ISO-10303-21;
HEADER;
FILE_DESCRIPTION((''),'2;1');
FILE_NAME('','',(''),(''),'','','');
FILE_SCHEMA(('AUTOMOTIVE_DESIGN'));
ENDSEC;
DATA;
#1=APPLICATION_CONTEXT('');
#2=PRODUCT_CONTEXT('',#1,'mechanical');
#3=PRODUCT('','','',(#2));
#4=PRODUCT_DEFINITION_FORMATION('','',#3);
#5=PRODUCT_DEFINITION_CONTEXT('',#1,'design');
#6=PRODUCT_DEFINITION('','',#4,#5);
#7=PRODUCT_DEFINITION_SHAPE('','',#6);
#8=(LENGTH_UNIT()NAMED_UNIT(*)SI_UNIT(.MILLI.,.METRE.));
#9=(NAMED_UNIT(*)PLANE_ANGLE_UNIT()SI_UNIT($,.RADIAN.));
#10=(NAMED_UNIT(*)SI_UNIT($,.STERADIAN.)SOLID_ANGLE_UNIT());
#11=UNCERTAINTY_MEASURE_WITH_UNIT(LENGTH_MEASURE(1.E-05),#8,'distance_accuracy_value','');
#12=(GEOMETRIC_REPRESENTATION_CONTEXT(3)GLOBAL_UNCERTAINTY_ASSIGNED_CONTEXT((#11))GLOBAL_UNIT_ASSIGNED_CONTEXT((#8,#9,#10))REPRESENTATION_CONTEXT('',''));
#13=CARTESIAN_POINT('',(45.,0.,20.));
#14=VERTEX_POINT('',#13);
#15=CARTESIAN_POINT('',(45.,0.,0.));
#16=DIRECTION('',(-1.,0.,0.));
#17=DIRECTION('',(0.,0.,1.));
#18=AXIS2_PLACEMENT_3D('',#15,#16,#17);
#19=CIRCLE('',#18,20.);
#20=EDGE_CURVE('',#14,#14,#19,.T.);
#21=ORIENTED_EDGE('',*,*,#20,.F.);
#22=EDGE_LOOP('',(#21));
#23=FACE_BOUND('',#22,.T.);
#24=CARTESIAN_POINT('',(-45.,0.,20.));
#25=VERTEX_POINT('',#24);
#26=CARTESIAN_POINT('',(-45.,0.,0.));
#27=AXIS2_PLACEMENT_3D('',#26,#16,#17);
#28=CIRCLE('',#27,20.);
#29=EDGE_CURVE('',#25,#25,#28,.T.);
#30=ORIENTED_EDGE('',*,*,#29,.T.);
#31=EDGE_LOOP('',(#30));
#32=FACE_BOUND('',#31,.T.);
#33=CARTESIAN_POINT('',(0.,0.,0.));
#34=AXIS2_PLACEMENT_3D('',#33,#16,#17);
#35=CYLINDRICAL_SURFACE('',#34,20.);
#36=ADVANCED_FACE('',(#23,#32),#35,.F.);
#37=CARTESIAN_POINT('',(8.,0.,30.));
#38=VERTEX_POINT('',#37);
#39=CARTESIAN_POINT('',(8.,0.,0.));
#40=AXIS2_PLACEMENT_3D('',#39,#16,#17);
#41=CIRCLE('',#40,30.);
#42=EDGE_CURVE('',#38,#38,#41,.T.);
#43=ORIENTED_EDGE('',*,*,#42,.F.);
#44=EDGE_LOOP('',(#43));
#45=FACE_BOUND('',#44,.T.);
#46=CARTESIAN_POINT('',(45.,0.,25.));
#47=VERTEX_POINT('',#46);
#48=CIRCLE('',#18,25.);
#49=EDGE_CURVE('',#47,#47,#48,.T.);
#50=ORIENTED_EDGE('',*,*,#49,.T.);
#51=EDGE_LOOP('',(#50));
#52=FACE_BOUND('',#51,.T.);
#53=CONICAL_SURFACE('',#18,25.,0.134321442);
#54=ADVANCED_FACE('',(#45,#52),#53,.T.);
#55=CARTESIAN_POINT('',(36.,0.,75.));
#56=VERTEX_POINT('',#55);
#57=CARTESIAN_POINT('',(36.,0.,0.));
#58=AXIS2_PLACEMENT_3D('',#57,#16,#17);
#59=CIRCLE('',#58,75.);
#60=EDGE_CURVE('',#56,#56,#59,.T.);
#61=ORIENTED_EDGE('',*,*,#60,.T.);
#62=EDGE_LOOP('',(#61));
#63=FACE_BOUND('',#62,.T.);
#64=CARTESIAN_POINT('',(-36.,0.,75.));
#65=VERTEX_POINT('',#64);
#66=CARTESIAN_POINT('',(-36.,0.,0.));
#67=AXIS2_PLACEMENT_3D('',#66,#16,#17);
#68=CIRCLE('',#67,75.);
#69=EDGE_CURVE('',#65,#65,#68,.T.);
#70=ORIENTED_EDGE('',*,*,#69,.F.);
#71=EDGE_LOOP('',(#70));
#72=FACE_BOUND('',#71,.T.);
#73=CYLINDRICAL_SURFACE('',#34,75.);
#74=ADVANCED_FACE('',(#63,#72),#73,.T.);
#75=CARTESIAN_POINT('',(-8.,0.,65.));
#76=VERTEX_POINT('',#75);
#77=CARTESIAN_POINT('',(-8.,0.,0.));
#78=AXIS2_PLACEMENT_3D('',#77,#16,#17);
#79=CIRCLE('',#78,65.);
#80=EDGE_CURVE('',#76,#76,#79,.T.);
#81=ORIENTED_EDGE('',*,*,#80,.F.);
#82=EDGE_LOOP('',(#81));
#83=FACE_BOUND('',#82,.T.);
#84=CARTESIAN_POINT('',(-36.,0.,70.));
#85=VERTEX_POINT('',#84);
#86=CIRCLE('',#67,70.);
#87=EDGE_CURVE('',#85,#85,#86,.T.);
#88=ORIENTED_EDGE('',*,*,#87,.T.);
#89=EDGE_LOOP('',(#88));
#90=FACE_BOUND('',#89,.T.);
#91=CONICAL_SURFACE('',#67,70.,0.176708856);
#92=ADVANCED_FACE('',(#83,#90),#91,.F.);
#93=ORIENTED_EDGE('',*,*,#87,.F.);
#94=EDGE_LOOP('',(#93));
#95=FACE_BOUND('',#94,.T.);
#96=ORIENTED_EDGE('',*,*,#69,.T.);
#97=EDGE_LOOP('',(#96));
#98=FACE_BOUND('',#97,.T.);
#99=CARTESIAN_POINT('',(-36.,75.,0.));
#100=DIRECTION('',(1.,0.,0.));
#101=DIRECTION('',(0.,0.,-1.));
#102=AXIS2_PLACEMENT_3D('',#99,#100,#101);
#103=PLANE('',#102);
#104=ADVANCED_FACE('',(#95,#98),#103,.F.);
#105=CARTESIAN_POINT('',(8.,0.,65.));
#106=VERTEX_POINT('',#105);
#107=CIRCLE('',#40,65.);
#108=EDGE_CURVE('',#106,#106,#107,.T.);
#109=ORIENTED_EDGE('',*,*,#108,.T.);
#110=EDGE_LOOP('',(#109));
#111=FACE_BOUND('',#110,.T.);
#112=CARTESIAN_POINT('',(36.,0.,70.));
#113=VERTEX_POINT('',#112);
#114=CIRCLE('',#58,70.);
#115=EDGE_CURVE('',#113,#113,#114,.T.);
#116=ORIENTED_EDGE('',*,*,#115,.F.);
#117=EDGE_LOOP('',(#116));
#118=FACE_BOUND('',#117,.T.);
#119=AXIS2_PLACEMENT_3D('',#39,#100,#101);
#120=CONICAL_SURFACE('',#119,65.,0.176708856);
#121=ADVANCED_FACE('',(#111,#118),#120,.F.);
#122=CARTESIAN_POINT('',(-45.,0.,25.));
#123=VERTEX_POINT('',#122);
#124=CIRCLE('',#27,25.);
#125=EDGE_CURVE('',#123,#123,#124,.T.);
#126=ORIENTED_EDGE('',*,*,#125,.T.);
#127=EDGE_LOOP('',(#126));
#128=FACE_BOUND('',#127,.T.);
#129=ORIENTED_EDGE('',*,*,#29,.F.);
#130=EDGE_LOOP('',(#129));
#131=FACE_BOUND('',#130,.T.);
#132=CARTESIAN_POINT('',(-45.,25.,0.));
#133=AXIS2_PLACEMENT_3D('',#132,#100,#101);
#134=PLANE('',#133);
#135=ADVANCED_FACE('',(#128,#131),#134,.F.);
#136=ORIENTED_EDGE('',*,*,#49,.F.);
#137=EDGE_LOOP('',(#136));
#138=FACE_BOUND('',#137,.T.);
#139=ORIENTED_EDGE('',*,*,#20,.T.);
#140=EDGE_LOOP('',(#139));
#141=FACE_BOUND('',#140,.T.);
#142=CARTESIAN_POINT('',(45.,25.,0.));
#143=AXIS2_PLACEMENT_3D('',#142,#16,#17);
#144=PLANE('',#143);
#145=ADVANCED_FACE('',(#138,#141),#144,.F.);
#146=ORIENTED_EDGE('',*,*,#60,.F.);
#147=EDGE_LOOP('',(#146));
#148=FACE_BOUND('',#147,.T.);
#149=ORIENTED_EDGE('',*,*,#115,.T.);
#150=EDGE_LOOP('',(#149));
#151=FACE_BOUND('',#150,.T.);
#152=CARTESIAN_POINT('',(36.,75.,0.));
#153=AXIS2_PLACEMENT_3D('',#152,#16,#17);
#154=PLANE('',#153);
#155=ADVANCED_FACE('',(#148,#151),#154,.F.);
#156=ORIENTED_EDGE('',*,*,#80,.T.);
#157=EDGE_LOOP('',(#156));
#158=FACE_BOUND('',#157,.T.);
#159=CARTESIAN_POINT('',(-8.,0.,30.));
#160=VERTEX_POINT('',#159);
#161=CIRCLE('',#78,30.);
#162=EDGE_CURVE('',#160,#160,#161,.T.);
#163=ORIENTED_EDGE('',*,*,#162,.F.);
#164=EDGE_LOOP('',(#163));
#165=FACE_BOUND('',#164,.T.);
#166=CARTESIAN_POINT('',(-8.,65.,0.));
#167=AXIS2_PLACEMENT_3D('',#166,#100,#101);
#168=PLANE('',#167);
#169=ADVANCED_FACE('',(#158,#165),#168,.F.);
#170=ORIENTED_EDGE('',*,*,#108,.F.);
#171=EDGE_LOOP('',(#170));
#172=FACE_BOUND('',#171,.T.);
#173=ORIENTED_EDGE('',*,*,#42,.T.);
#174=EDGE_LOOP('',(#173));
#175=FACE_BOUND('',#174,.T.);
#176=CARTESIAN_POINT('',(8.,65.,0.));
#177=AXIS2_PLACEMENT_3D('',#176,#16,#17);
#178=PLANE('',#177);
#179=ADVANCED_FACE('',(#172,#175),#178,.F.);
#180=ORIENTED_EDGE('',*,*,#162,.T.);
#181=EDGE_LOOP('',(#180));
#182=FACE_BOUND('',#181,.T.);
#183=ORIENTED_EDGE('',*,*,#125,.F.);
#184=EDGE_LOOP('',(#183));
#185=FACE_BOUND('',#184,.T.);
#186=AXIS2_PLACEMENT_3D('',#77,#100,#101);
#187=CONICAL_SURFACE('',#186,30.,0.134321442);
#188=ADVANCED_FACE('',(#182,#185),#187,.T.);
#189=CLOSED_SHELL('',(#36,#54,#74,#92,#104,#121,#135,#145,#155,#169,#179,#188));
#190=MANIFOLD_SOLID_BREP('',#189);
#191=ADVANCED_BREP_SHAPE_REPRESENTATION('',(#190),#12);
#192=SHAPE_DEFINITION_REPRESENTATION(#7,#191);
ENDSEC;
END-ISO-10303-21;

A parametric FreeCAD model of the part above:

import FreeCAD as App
import Part
import Sketcher
from FreeCAD import Vector
Q = App.Units.Quantity

doc = App.newDocument("Part")
params = doc.addObject("Spreadsheet::Sheet", "Params")
for row, (alias, value) in enumerate([
    ("sketch1_width", "72 mm"),
    ("sketch1_width2", "90 mm"),
    ("sketch1_height", "5 mm"),
    ("sketch1_height2", "35 mm"),
    ("revolution_angle", "360 deg"),
], start=1):
    params.set(f"A{row}", alias)
    params.set(f"B{row}", "=" + value)
    params.setAlias(f"B{row}", alias)

body = doc.addObject("PartDesign::Body", "Body")

# Sketch on XY plane
sketch1 = body.newObject("Sketcher::SketchObject", "Sketch")
sketch1.AttachmentSupport = (doc.getObject("XY_Plane"), [""])
sketch1.MapMode = "FlatFace"
sketch1.addGeometry([
    Part.LineSegment(Vector(36, 75, 0), Vector(-36, 75, 0)),  # 0
    Part.LineSegment(Vector(-36, 75, 0), Vector(-36, 70, 0)),  # 1
    Part.LineSegment(Vector(-36, 70, 0), Vector(-8, 65, 0)),  # 2
    Part.LineSegment(Vector(-8, 65, 0), Vector(-8, 30, 0)),  # 3
    Part.LineSegment(Vector(-8, 30, 0), Vector(-45, 25, 0)),  # 4
    Part.LineSegment(Vector(-45, 25, 0), Vector(-45, 20, 0)),  # 5
    Part.LineSegment(Vector(-45, 20, 0), Vector(45, 20, 0)),  # 6
    Part.LineSegment(Vector(45, 20, 0), Vector(45, 25, 0)),  # 7
    Part.LineSegment(Vector(45, 25, 0), Vector(8, 30, 0)),  # 8
    Part.LineSegment(Vector(8, 30, 0), Vector(8, 65, 0)),  # 9
    Part.LineSegment(Vector(8, 65, 0), Vector(36, 70, 0)),  # 10
    Part.LineSegment(Vector(36, 70, 0), Vector(36, 75, 0)),  # 11
], False)
sketch1.addConstraint([
    Sketcher.Constraint("Coincident", 0, 2, 1, 1),
    Sketcher.Constraint("Coincident", 1, 2, 2, 1),
    Sketcher.Constraint("Coincident", 2, 2, 3, 1),
    Sketcher.Constraint("Coincident", 3, 2, 4, 1),
    Sketcher.Constraint("Coincident", 4, 2, 5, 1),
    Sketcher.Constraint("Coincident", 5, 2, 6, 1),
    Sketcher.Constraint("Coincident", 6, 2, 7, 1),
    Sketcher.Constraint("Coincident", 7, 2, 8, 1),
    Sketcher.Constraint("Coincident", 8, 2, 9, 1),
    Sketcher.Constraint("Coincident", 9, 2, 10, 1),
    Sketcher.Constraint("Coincident", 10, 2, 11, 1),
    Sketcher.Constraint("Coincident", 11, 2, 0, 1),
    Sketcher.Constraint("Horizontal", 0),
    Sketcher.Constraint("Vertical", 1),
    Sketcher.Constraint("Vertical", 3),
    Sketcher.Constraint("Vertical", 5),
    Sketcher.Constraint("Horizontal", 6),
    Sketcher.Constraint("Vertical", 7),
    Sketcher.Constraint("Vertical", 9),
    Sketcher.Constraint("Vertical", 11),
    Sketcher.Constraint("Symmetric", 4, 2, 7, 2, -2),
    Sketcher.Constraint("Symmetric", 3, 2, 8, 2, -2),
    Sketcher.Constraint("Symmetric", 1, 2, 10, 2, -2),
    Sketcher.Constraint("Horizontal", 2, 2, 9, 2),
    Sketcher.Constraint("Equal", 1, 5),
    Sketcher.Constraint("DistanceX", 0, 2, 0, 1, Q("72 mm")),
    Sketcher.Constraint("DistanceX", 6, 1, 6, 2, Q("90 mm")),
    Sketcher.Constraint("DistanceY", 1, 2, 1, 1, Q("5 mm")),
    Sketcher.Constraint("DistanceY", 3, 2, 3, 1, Q("35 mm")),
    Sketcher.Constraint("DistanceY", -1, 1, 0, 2, Q("75 mm")),
    Sketcher.Constraint("DistanceX", 2, 2, -1, 1, Q("8 mm")),
    Sketcher.Constraint("DistanceY", -1, 1, 2, 2, Q("65 mm")),
    Sketcher.Constraint("DistanceY", -1, 1, 4, 2, Q("25 mm")),
])
sketch1.setExpression("Constraints[25]", "Params.sketch1_width")
sketch1.setExpression("Constraints[26]", "Params.sketch1_width2")
sketch1.setExpression("Constraints[27]", "Params.sketch1_height")
sketch1.setExpression("Constraints[28]", "Params.sketch1_height2")
revolution = body.newObject("PartDesign::Revolution", "Revolution")
revolution.Profile = sketch1
revolution.ReferenceAxis = (sketch1, ["H_Axis"])
revolution.setExpression("Angle", "Params.revolution_angle")

doc.recompute()
